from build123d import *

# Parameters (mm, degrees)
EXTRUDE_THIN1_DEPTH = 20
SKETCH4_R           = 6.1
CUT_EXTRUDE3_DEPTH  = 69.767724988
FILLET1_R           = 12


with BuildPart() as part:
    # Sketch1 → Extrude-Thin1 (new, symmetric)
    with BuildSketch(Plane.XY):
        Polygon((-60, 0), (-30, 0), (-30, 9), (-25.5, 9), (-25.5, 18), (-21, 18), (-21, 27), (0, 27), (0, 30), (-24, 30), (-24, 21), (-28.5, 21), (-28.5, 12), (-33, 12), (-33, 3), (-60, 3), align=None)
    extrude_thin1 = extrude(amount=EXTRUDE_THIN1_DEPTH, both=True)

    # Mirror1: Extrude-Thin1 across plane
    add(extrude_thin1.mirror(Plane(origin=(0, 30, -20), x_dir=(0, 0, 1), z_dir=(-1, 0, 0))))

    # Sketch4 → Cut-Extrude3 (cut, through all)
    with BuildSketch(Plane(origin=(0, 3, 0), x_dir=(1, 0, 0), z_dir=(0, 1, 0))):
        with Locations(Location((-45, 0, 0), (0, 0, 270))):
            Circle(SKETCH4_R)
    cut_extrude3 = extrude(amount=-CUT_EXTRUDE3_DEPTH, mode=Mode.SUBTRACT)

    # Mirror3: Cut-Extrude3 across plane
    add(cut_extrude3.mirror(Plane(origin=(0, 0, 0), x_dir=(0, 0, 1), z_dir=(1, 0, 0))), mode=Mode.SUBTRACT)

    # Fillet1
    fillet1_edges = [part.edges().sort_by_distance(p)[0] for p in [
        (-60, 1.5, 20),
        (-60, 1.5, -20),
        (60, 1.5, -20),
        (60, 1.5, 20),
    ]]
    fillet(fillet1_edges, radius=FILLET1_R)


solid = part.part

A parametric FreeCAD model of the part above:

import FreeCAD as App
import Part
import Sketcher
Q = App.Units.Quantity


def edges_at(feature, points):
    """Names of the edges that pass closest to the given points."""
    edges = feature.Shape.Edges
    near = lambda p: min(range(len(edges)), key=lambda i: edges[i].distToShape(Part.Vertex(*p))[0])
    return sorted({f"Edge{near(p) + 1}" for p in points})

doc = App.newDocument("Part")
body = doc.addObject("PartDesign::Body", "Body")

# Sketch on XY plane
sketch1 = body.newObject("Sketcher::SketchObject", "Sketch")
sketch1.AttachmentSupport = (doc.getObject("XY_Plane"), [""])
sketch1.MapMode = "FlatFace"
sketch1.addGeometry(Part.LineSegment(App.Vector(-60, 0, 0), App.Vector(-30, 0, 0)), False)
sketch1.addGeometry(Part.LineSegment(App.Vector(-30, 0, 0), App.Vector(-30, 9, 0)), False)
sketch1.addGeometry(Part.LineSegment(App.Vector(-30, 9, 0), App.Vector(-25.5, 9, 0)), False)
sketch1.addGeometry(Part.LineSegment(App.Vector(-25.5, 9, 0), App.Vector(-25.5, 18, 0)), False)
sketch1.addGeometry(Part.LineSegment(App.Vector(-25.5, 18, 0), App.Vector(-21, 18, 0)), False)
sketch1.addGeometry(Part.LineSegment(App.Vector(-21, 18, 0), App.Vector(-21, 27, 0)), False)
sketch1.addGeometry(Part.LineSegment(App.Vector(-21, 27, 0), App.Vector(0, 27, 0)), False)
sketch1.addGeometry(Part.LineSegment(App.Vector(0, 27, 0), App.Vector(0, 30, 0)), False)
sketch1.addGeometry(Part.LineSegment(App.Vector(0, 30, 0), App.Vector(-24, 30, 0)), False)
sketch1.addGeometry(Part.LineSegment(App.Vector(-24, 30, 0), App.Vector(-24, 21, 0)), False)
sketch1.addGeometry(Part.LineSegment(App.Vector(-24, 21, 0), App.Vector(-28.5, 21, 0)), False)
sketch1.addGeometry(Part.LineSegment(App.Vector(-28.5, 21, 0), App.Vector(-28.5, 12, 0)), False)
sketch1.addGeometry(Part.LineSegment(App.Vector(-28.5, 12, 0), App.Vector(-33, 12, 0)), False)
sketch1.addGeometry(Part.LineSegment(App.Vector(-33, 12, 0), App.Vector(-33, 3, 0)), False)
sketch1.addGeometry(Part.LineSegment(App.Vector(-33, 3, 0), App.Vector(-60, 3, 0)), False)
sketch1.addGeometry(Part.LineSegment(App.Vector(-60, 3, 0), App.Vector(-60, 0, 0)), False)
sketch1.addConstraint(Sketcher.Constraint("Coincident", 0, 2, 1, 1))
sketch1.addConstraint(Sketcher.Constraint("Coincident", 1, 2, 2, 1))
sketch1.addConstraint(Sketcher.Constraint("Coincident", 2, 2, 3, 1))
sketch1.addConstraint(Sketcher.Constraint("Coincident", 3, 2, 4, 1))
sketch1.addConstraint(Sketcher.Constraint("Coincident", 4, 2, 5, 1))
sketch1.addConstraint(Sketcher.Constraint("Coincident", 5, 2, 6, 1))
sketch1.addConstraint(Sketcher.Constraint("Coincident", 6, 2, 7, 1))
sketch1.addConstraint(Sketcher.Constraint("Coincident", 7, 2, 8, 1))
sketch1.addConstraint(Sketcher.Constraint("Coincident", 8, 2, 9, 1))
sketch1.addConstraint(Sketcher.Constraint("Coincident", 9, 2, 10, 1))
sketch1.addConstraint(Sketcher.Constraint("Coincident", 10, 2, 11, 1))
sketch1.addConstraint(Sketcher.Constraint("Coincident", 11, 2, 12, 1))
sketch1.addConstraint(Sketcher.Constraint("Coincident", 12, 2, 13, 1))
sketch1.addConstraint(Sketcher.Constraint("Coincident", 13, 2, 14, 1))
sketch1.addConstraint(Sketcher.Constraint("Coincident", 14, 2, 15, 1))
sketch1.addConstraint(Sketcher.Constraint("Coincident", 15, 2, 0, 1))
sketch1.addConstraint(Sketcher.Constraint("Horizontal", 0))
sketch1.addConstraint(Sketcher.Constraint("Vertical", 1))
sketch1.addConstraint(Sketcher.Constraint("Horizontal", 2))
sketch1.addConstraint(Sketcher.Constraint("Vertical", 3))
sketch1.addConstraint(Sketcher.Constraint("Horizontal", 4))
sketch1.addConstraint(Sketcher.Constraint("Vertical", 5))
sketch1.addConstraint(Sketcher.Constraint("Horizontal", 6))
sketch1.addConstraint(Sketcher.Constraint("Vertical", 7))
sketch1.addConstraint(Sketcher.Constraint("Horizontal", 8))
sketch1.addConstraint(Sketcher.Constraint("Vertical", 9))
sketch1.addConstraint(Sketcher.Constraint("Horizontal", 10))
sketch1.addConstraint(Sketcher.Constraint("Vertical", 11))
sketch1.addConstraint(Sketcher.Constraint("Horizontal", 12))
sketch1.addConstraint(Sketcher.Constraint("Vertical", 13))
sketch1.addConstraint(Sketcher.Constraint("Horizontal", 14))
sketch1.addConstraint(Sketcher.Constraint("Vertical", 15))
sketch1.addConstraint(Sketcher.Constraint("PointOnObject", 0, 2, -1))
sketch1.addConstraint(Sketcher.Constraint("PointOnObject", 6, 2, -2))
sketch1.addConstraint(Sketcher.Constraint("Equal", 2, 4))
sketch1.addConstraint(Sketcher.Constraint("Equal", 4, 10))
sketch1.addConstraint(Sketcher.Constraint("Equal", 10, 12))
sketch1.addConstraint(Sketcher.Constraint("Equal", 1, 3))
sketch1.addConstraint(Sketcher.Constraint("Equal", 3, 5))
sketch1.addConstraint(Sketcher.Constraint("Equal", 5, 9))
sketch1.addConstraint(Sketcher.Constraint("Equal", 9, 11))
sketch1.addConstraint(Sketcher.Constraint("Equal", 11, 13))
sketch1.addConstraint(Sketcher.Constraint("DistanceX", 0, 1, 0, 2, Q("30 mm")))
sketch1.addConstraint(Sketcher.Constraint("DistanceX", 6, 1, 6, 2, Q("21 mm")))
sketch1.addConstraint(Sketcher.Constraint("DistanceX", 8, 2, 8, 1, Q("24 mm")))
sketch1.addConstraint(Sketcher.Constraint("DistanceY", 1, 1, 1, 2, Q("9 mm")))
sketch1.addConstraint(Sketcher.Constraint("DistanceY", 7, 1, 7, 2, Q("3 mm")))
sketch1.addConstraint(Sketcher.Constraint("DistanceX", 2, 1, 2, 2, Q("4.5 mm")))
pad1 = body.newObject("PartDesign::Pad", "Pad")
pad1.Profile = sketch1
pad1.Length = 40
pad1.Midplane = True
doc.recompute()

mirrored = body.newObject("PartDesign::Mirrored", "Mirrored")
mirrored.Originals = [pad1]
mirrored.MirrorPlane = (doc.getObject("YZ_Plane"), [""])
body.Tip = mirrored

# Sketch on XZ plane
sketch2 = body.newObject("Sketcher::SketchObject", "Sketch001")
sketch2.AttachmentSupport = (doc.getObject("XZ_Plane"), [""])
sketch2.MapMode = "FlatFace"
sketch2.AttachmentOffset = App.Placement(App.Vector(0, 0, -3), App.Rotation())
sketch2.addGeometry(Part.Circle(App.Vector(-45, 0, 0), App.Vector(0, 0, 1), 6.1), False)
sketch2.addConstraint(Sketcher.Constraint("PointOnObject", 0, 3, -1))
sketch2.addConstraint(Sketcher.Constraint("Diameter", 0, Q("12.2 mm")))
sketch2.addConstraint(Sketcher.Constraint("DistanceX", 0, 3, -1, 1, Q("45 mm")))
pocket1 = body.newObject("PartDesign::Pocket", "Pocket")
pocket1.Profile = sketch2
pocket1.Type = "ThroughAll"
pocket1.Reversed = True
doc.recompute()

mirrored2 = body.newObject("PartDesign::Mirrored", "Mirrored001")
mirrored2.Originals = [pocket1]
mirrored2.MirrorPlane = (doc.getObject("YZ_Plane"), [""])
body.Tip = mirrored2
doc.recompute()

fillet = body.newObject("PartDesign::Fillet", "Fillet")
fillet.Base = (mirrored2, edges_at(mirrored2, [
    (-60, 1.5, 20),
    (-60, 1.5, -20),
    (60, 1.5, -20),
    (60, 1.5, 20),
]))
fillet.Radius = 12

doc.recompute()
